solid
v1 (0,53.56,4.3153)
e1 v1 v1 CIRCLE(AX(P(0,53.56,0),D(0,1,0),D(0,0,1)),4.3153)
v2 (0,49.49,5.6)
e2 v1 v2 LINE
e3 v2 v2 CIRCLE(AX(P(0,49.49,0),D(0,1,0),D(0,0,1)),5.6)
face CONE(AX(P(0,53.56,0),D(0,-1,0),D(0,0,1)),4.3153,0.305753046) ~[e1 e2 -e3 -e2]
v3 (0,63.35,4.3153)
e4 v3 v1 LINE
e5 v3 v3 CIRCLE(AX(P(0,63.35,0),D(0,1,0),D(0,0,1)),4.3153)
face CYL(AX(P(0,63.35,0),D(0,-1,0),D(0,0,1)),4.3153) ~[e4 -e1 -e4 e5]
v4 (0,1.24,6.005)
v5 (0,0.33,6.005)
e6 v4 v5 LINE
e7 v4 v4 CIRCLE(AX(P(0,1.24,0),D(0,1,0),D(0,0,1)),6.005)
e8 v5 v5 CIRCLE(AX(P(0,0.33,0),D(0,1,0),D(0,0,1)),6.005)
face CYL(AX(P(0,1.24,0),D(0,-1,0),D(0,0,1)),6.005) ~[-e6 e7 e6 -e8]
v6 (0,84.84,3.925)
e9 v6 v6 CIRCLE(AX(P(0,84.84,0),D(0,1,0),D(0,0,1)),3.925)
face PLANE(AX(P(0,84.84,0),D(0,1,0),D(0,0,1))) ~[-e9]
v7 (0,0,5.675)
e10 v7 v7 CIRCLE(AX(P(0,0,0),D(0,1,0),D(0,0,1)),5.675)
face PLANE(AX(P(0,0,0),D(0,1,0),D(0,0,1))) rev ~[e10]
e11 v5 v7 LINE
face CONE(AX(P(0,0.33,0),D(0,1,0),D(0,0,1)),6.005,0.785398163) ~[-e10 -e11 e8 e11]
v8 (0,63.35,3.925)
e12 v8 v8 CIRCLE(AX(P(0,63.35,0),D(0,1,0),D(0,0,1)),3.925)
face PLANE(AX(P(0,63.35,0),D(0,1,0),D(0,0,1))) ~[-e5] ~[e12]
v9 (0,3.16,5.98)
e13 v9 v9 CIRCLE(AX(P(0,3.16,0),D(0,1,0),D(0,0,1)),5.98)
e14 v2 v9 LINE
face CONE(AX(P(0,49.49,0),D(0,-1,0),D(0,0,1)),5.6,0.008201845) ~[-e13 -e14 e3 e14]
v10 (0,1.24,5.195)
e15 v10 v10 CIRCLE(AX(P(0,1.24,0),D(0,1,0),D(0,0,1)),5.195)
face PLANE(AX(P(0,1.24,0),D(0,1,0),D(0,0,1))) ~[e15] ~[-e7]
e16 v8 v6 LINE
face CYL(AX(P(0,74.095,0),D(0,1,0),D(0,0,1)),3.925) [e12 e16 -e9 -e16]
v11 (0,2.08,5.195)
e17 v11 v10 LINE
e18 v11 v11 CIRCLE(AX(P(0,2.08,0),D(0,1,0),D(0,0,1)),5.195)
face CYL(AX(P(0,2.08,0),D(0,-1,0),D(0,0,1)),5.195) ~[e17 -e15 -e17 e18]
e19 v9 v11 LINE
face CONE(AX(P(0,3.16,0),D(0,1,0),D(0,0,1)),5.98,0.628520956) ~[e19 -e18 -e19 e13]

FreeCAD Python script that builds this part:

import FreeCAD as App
import Part
import Sketcher

V = App.Vector
Q = App.Units.Quantity


def add_polygon(sketch, points):
    """Adds a closed chain of lines whose ends are joined by coincident constraints."""
    first, n = sketch.GeometryCount, len(points)
    for a, b in zip(points, points[1:] + points[:1]):
        sketch.addGeometry(Part.LineSegment(App.Vector(*a, 0), App.Vector(*b, 0)), False)
    for i in range(n):
        sketch.addConstraint(Sketcher.Constraint("Coincident", first + i, 2, first + (i + 1) % n, 1))

doc = App.newDocument("Part")
body = doc.addObject("PartDesign::Body", "Body")

# Sketch on YZ plane
sketch1 = body.newObject("Sketcher::SketchObject", "Sketch")
sketch1.AttachmentSupport = (doc.getObject("YZ_Plane"), [""])
sketch1.MapMode = "FlatFace"
add_polygon(sketch1, [(0, 5.67), (0, 0), (84.84, 0), (84.84, 3.92), (63.35, 3.92), (63.35, 4.32), (53.56, 4.32), (49.49, 5.6), (3.16, 5.98), (2.08, 5.2), (1.24, 5.2), (1.24, 6), (0.33, 6)])  # lines 0-12
sketch1.addConstraint([
    Sketcher.Constraint("Vertical", 0),
    Sketcher.Constraint("Horizontal", 1),
    Sketcher.Constraint("Vertical", 2),
    Sketcher.Constraint("Horizontal", 3),
    Sketcher.Constraint("Vertical", 4),
    Sketcher.Constraint("Horizontal", 5),
    Sketcher.Constraint("Horizontal", 9),
    Sketcher.Constraint("Vertical", 10),
    Sketcher.Constraint("Horizontal", 11),
    Sketcher.Constraint("Coincident", 0, 2, -1, 1),
    Sketcher.Constraint("Angle", 12, Q("-135 deg")),
    Sketcher.Constraint("DistanceX", 1, 1, 1, 2, Q("84.84 mm")),
    Sketcher.Constraint("DistanceX", 3, 2, 3, 1, Q("21.49 mm")),
    Sketcher.Constraint("DistanceX", 5, 2, 5, 1, Q("9.79 mm")),
    Sketcher.Constraint("DistanceX", 9, 2, 9, 1, Q("0.84 mm")),
    Sketcher.Constraint("DistanceX", 11, 2, 11, 1, Q("0.91 mm")),
    Sketcher.Constraint("DistanceY", 10, 1, 10, 2, Q("0.81 mm")),
    Sketcher.Constraint("DistanceY", -1, 1, 6, 2, Q("5.6 mm")),
    Sketcher.Constraint("DistanceX", 7, 2, 5, 2, Q("50.4 mm")),
    Sketcher.Constraint("DistanceY", 0, 2, 0, 1, Q("5.675 mm")),
    Sketcher.Constraint("DistanceY", 2, 1, 2, 2, Q("3.925 mm")),
    Sketcher.Constraint("DistanceX", -1, 1, 6, 2, Q("49.49 mm")),
    Sketcher.Constraint("DistanceY", -1, 1, 7, 2, Q("5.98 mm")),
    Sketcher.Constraint("DistanceX", -1, 1, 8, 2, Q("2.08 mm")),
    Sketcher.Constraint("DistanceY", 4, 1, 4, 2, Q("0.3903 mm")),
])
revolution = body.newObject("PartDesign::Revolution", "Revolution")
revolution.Profile = sketch1
revolution.ReferenceAxis = (sketch1, ["H_Axis"])
revolution.Angle = 360

doc.recompute()
